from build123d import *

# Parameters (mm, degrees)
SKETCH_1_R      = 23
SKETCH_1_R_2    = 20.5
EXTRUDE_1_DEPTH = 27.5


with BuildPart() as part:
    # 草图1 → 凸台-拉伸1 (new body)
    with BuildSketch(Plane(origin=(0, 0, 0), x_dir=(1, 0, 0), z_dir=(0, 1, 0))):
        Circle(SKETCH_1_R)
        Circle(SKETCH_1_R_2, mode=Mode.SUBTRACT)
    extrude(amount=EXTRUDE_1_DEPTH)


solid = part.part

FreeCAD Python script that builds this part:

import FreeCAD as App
import Part
import Sketcher

V = App.Vector

doc = App.newDocument("Part")
body = doc.addObject("PartDesign::Body", "Body")

# Sketch on XZ plane
sketch1 = body.newObject("Sketcher::SketchObject", "Sketch")
sketch1.AttachmentSupport = (doc.getObject("XZ_Plane"), [""])
sketch1.MapMode = "FlatFace"
sketch1.addGeometry(Part.Circle(V(0, 0, 0), V(0, 0, 1), 23), False)
sketch1.addGeometry(Part.Circle(V(0, 0, 0), V(0, 0, 1), 20), False)
sketch1.addConstraint(Sketcher.Constraint("Coincident", 0, 3, -1, 1))
sketch1.addConstraint(Sketcher.Constraint("Coincident", 1, 3, -1, 1))
sketch1.addConstraint(Sketcher.Constraint("Diameter", 0, 46.0))
sketch1.addConstraint(Sketcher.Constraint("Diameter", 1, 41.0))
pad1 = body.newObject("PartDesign::Pad", "Pad")
pad1.Profile = sketch1
pad1.Length = 27.5
pad1.Reversed = True

doc.recompute()
